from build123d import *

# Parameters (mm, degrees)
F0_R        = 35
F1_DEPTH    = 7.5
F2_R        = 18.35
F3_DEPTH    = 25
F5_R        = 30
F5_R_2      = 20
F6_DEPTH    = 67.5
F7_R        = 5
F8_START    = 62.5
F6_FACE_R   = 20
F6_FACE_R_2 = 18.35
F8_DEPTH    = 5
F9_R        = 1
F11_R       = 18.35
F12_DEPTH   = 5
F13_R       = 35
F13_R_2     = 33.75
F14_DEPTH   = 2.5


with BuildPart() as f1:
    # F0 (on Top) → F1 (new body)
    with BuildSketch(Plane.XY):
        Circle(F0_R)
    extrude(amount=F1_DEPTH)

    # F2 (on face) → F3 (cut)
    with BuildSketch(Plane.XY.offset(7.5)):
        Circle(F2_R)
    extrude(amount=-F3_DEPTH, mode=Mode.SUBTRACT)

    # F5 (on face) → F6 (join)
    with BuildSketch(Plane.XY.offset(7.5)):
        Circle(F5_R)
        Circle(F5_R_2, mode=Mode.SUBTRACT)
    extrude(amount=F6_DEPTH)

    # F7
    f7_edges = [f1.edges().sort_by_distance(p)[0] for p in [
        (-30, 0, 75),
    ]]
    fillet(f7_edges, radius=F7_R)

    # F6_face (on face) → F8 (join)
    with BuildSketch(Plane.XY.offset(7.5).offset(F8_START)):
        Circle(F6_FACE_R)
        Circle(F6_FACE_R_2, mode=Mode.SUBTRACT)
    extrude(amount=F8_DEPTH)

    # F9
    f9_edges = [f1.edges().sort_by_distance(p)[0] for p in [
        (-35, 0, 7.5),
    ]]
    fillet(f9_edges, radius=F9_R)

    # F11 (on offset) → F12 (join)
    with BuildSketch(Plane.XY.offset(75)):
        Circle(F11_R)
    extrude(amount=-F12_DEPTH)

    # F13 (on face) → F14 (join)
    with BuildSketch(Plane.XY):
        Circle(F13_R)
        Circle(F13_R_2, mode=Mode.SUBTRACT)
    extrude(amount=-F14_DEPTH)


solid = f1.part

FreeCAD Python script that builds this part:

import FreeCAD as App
import Part
import Sketcher
from FreeCAD import Vector


def edges_at(feature, points):
    """Names of the edges that pass closest to the given points."""
    edges = feature.Shape.Edges
    near = lambda p: min(range(len(edges)), key=lambda i: edges[i].distToShape(Part.Vertex(*p))[0])
    return sorted({f"Edge{near(p) + 1}" for p in points})

doc = App.newDocument("Part")
params = doc.addObject("Spreadsheet::Sheet", "Params")
for row, (alias, value) in enumerate([
    ("sketch1_diameter", "70 mm"),
    ("pad1_length", "7.5 mm"),
    ("sketch2_diameter", "36.7 mm"),
    ("pocket1_length", "25 mm"),
    ("sketch3_diameter", "60 mm"),
    ("sketch3_diameter2", "40 mm"),
    ("pad2_length", "67.5 mm"),
    ("fillet_radius", "5 mm"),
    ("sketch4_diameter", "40 mm"),
    ("sketch4_diameter2", "36.7 mm"),
    ("pad3_length", "5 mm"),
    ("fillet2_radius", "1 mm"),
    ("sketch5_diameter", "36.7 mm"),
    ("pad4_length", "5 mm"),
    ("sketch6_diameter", "70 mm"),
    ("sketch6_diameter2", "67.5 mm"),
    ("pad5_length", "2.5 mm"),
], start=1):
    params.set(f"A{row}", alias)
    params.set(f"B{row}", "=" + value)
    params.setAlias(f"B{row}", alias)

body = doc.addObject("PartDesign::Body", "Body")

sketch1 = body.newObject("Sketcher::SketchObject", "Sketch")
sketch1.AttachmentSupport = (doc.getObject("XY_Plane"), [""])
sketch1.MapMode = "FlatFace"
sketch1.addGeometry(Part.Circle(Vector(0, 0, 0), Vector(0, 0, 1), 35), False)
sketch1.addConstraint([
    Sketcher.Constraint("Coincident", 0, 3, -1, 1),
    Sketcher.Constraint("Diameter", 0, 70.0),
])
sketch1.setExpression("Constraints[1]", "Params.sketch1_diameter")
pad1 = body.newObject("PartDesign::Pad", "Pad")
pad1.Profile = sketch1
pad1.setExpression("Length", "Params.pad1_length")

sketch2 = body.newObject("Sketcher::SketchObject", "Sketch001")
sketch2.AttachmentSupport = (doc.getObject("XY_Plane"), [""])
sketch2.MapMode = "FlatFace"
sketch2.AttachmentOffset = App.Placement(Vector(0, 0, 7.5), App.Rotation())
sketch2.addGeometry(Part.Circle(Vector(0, 0, 0), Vector(0, 0, 1), 18.35), False)
sketch2.addConstraint([
    Sketcher.Constraint("Coincident", 0, 3, -1, 1),
    Sketcher.Constraint("Diameter", 0, 36.7),
])
sketch2.setExpression("Constraints[1]", "Params.sketch2_diameter")
pocket1 = body.newObject("PartDesign::Pocket", "Pocket")
pocket1.Profile = sketch2
pocket1.setExpression("Length", "Params.pocket1_length")

sketch3 = body.newObject("Sketcher::SketchObject", "Sketch002")
sketch3.AttachmentSupport = (doc.getObject("XY_Plane"), [""])
sketch3.MapMode = "FlatFace"
sketch3.AttachmentOffset = App.Placement(Vector(0, 0, 7.5), App.Rotation())
sketch3.addGeometry([
    Part.Circle(Vector(0, 0, 0), Vector(0, 0, 1), 30),
    Part.Circle(Vector(0, 0, 0), Vector(0, 0, 1), 20),
], False)
sketch3.addConstraint([
    Sketcher.Constraint("Coincident", 0, 3, -1, 1),
    Sketcher.Constraint("Coincident", 1, 3, -1, 1),
    Sketcher.Constraint("Diameter", 0, 60.0),
    Sketcher.Constraint("Diameter", 1, 40.0),
])
sketch3.setExpression("Constraints[2]", "Params.sketch3_diameter")
sketch3.setExpression("Constraints[3]", "Params.sketch3_diameter2")
pad2 = body.newObject("PartDesign::Pad", "Pad001")
pad2.Profile = sketch3
pad2.setExpression("Length", "Params.pad2_length")
doc.recompute()

fillet = body.newObject("PartDesign::Fillet", "Fillet")
fillet.Base = (pad2, edges_at(pad2, [(-30, 0, 75)]))
fillet.setExpression("Radius", "Params.fillet_radius")

sketch4 = body.newObject("Sketcher::SketchObject", "Sketch003")
sketch4.AttachmentSupport = (doc.getObject("XY_Plane"), [""])
sketch4.MapMode = "FlatFace"
sketch4.AttachmentOffset = App.Placement(Vector(0, 0, 70), App.Rotation())
sketch4.addGeometry([
    Part.Circle(Vector(0, 0, 0), Vector(0, 0, 1), 20),
    Part.Circle(Vector(0, 0, 0), Vector(0, 0, 1), 18.35),
], False)
sketch4.addConstraint([
    Sketcher.Constraint("Coincident", 0, 3, -1, 1),
    Sketcher.Constraint("Coincident", 1, 3, -1, 1),
    Sketcher.Constraint("Diameter", 0, 40.0),
    Sketcher.Constraint("Diameter", 1, 36.7),
])
sketch4.setExpression("Constraints[2]", "Params.sketch4_diameter")
sketch4.setExpression("Constraints[3]", "Params.sketch4_diameter2")
pad3 = body.newObject("PartDesign::Pad", "Pad002")
pad3.Profile = sketch4
pad3.setExpression("Length", "Params.pad3_length")
doc.recompute()

fillet2 = body.newObject("PartDesign::Fillet", "Fillet001")
fillet2.Base = (pad3, edges_at(pad3, [(-35, 0, 7.5)]))
fillet2.setExpression("Radius", "Params.fillet2_radius")

sketch5 = body.newObject("Sketcher::SketchObject", "Sketch004")
sketch5.AttachmentSupport = (doc.getObject("XY_Plane"), [""])
sketch5.MapMode = "FlatFace"
sketch5.AttachmentOffset = App.Placement(Vector(0, 0, 75), App.Rotation())
sketch5.addGeometry(Part.Circle(Vector(0, 0, 0), Vector(0, 0, 1), 18.35), False)
sketch5.addConstraint([
    Sketcher.Constraint("Coincident", 0, 3, -1, 1),
    Sketcher.Constraint("Diameter", 0, 36.7),
])
sketch5.setExpression("Constraints[1]", "Params.sketch5_diameter")
pad4 = body.newObject("PartDesign::Pad", "Pad003")
pad4.Profile = sketch5
pad4.setExpression("Length", "Params.pad4_length")
pad4.Reversed = True

sketch6 = body.newObject("Sketcher::SketchObject", "Sketch005")
sketch6.AttachmentSupport = (doc.getObject("XY_Plane"), [""])
sketch6.MapMode = "FlatFace"
sketch6.addGeometry([
    Part.Circle(Vector(0, 0, 0), Vector(0, 0, 1), 35),
    Part.Circle(Vector(0, 0, 0), Vector(0, 0, 1), 33.75),
], False)
sketch6.addConstraint([
    Sketcher.Constraint("Coincident", 0, 3, -1, 1),
    Sketcher.Constraint("Coincident", 1, 3, -1, 1),
    Sketcher.Constraint("Diameter", 0, 70.0),
    Sketcher.Constraint("Diameter", 1, 67.5),
])
sketch6.setExpression("Constraints[2]", "Params.sketch6_diameter")
sketch6.setExpression("Constraints[3]", "Params.sketch6_diameter2")
pad5 = body.newObject("PartDesign::Pad", "Pad004")
pad5.Profile = sketch6
pad5.setExpression("Length", "Params.pad5_length")
pad5.Reversed = True

doc.recompute()
